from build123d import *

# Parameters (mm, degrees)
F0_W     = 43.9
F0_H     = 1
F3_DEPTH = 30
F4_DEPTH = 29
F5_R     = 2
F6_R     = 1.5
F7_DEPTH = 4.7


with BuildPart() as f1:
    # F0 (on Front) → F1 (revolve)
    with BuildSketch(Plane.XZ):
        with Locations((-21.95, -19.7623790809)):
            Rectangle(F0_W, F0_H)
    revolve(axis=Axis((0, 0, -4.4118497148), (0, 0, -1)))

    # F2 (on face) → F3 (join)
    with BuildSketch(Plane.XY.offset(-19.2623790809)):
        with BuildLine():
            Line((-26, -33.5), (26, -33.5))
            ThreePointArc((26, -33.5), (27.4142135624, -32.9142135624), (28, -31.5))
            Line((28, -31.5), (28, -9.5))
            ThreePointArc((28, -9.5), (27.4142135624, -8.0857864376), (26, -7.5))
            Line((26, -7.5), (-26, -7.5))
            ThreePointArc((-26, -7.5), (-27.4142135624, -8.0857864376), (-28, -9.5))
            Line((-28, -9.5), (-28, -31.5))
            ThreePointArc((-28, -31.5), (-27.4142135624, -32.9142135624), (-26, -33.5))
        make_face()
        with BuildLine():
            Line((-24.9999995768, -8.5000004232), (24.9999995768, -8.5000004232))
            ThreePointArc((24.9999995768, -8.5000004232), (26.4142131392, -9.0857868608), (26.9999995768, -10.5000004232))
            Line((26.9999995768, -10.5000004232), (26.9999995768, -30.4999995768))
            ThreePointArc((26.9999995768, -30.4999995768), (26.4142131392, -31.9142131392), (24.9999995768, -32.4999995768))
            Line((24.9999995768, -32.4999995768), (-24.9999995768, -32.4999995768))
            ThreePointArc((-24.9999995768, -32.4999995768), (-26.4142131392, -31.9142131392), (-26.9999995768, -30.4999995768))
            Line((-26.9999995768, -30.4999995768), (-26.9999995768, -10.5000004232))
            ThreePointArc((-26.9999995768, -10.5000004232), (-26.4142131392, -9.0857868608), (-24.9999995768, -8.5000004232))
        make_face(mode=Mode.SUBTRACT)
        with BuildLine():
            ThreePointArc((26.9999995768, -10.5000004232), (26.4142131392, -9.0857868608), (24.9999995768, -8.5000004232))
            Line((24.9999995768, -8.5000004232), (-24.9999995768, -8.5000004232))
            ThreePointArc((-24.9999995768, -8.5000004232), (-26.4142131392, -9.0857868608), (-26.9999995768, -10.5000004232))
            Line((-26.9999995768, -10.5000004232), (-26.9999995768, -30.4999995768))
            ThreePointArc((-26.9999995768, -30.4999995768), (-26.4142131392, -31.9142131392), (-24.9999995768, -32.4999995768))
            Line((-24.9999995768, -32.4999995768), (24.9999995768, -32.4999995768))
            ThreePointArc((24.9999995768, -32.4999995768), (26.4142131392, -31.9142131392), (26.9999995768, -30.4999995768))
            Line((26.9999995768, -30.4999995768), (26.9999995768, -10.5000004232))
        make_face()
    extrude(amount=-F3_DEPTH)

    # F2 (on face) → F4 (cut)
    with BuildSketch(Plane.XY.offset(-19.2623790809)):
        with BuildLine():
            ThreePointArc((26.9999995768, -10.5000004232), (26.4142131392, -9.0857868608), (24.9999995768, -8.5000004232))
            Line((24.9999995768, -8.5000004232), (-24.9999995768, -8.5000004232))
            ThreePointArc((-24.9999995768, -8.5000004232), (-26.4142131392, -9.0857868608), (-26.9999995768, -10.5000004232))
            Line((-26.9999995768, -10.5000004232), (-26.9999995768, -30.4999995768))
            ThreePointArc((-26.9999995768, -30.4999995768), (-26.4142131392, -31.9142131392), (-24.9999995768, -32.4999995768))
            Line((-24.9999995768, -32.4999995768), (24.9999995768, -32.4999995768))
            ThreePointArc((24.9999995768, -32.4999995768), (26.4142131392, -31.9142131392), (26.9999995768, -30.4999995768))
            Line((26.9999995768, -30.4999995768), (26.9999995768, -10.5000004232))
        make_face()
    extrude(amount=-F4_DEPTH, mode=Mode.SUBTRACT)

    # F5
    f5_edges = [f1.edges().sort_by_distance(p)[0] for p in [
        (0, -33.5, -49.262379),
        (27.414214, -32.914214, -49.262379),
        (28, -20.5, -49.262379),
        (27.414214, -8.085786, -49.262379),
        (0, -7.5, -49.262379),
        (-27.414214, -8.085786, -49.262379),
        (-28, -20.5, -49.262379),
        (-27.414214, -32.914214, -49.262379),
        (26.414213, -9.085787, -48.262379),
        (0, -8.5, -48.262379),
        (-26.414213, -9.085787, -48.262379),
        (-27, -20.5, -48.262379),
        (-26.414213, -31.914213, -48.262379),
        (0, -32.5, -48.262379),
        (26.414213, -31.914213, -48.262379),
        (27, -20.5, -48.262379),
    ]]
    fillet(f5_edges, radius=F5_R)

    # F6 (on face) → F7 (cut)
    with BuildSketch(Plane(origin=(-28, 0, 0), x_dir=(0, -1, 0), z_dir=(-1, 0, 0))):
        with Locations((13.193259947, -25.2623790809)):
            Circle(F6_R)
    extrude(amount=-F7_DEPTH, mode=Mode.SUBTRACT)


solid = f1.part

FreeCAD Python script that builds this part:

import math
import FreeCAD as App
import Part
import Sketcher


def edges_at(feature, points):
    """Names of the edges that pass closest to the given points."""
    edges = feature.Shape.Edges
    near = lambda p: min(range(len(edges)), key=lambda i: edges[i].distToShape(Part.Vertex(*p))[0])
    return sorted({f"Edge{near(p) + 1}" for p in points})

doc = App.newDocument("Part")
body = doc.addObject("PartDesign::Body", "Body")

sketch1 = doc.addObject("Sketcher::SketchObject", "Sketch")
body.addObject(sketch1)
sketch1.AttachmentSupport = (doc.XZ_Plane, [""])
sketch1.MapMode = "FlatFace"
sketch1.addGeometry(Part.LineSegment(App.Vector(-43.9, -19.3, 0), App.Vector(-43.9, -20.3, 0)), False)
sketch1.addGeometry(Part.LineSegment(App.Vector(-43.9, -20.3, 0), App.Vector(0, -20.3, 0)), False)
sketch1.addGeometry(Part.LineSegment(App.Vector(0, -20.3, 0), App.Vector(0, -19.3, 0)), False)
sketch1.addGeometry(Part.LineSegment(App.Vector(0, -19.3, 0), App.Vector(-43.9, -19.3, 0)), False)
sketch1.addConstraint(Sketcher.Constraint("Coincident", 0, 2, 1, 1))
sketch1.addConstraint(Sketcher.Constraint("Coincident", 1, 2, 2, 1))
sketch1.addConstraint(Sketcher.Constraint("Coincident", 2, 2, 3, 1))
sketch1.addConstraint(Sketcher.Constraint("Coincident", 3, 2, 0, 1))
sketch1.addConstraint(Sketcher.Constraint("Vertical", 0))
sketch1.addConstraint(Sketcher.Constraint("Horizontal", 1))
sketch1.addConstraint(Sketcher.Constraint("Vertical", 2))
sketch1.addConstraint(Sketcher.Constraint("Horizontal", 3))
sketch1.addConstraint(Sketcher.Constraint("PointOnObject", 1, 2, -2))
sketch1.addConstraint(Sketcher.Constraint("DistanceY", 0, 2, 0, 1, 1.0))
sketch1.addConstraint(Sketcher.Constraint("DistanceX", 1, 1, 1, 2, 43.9))
sketch1.addConstraint(Sketcher.Constraint("DistanceY", 0, 2, -1, 1, 20.262379))
revolution = doc.addObject("PartDesign::Revolution", "Revolution")
body.addObject(revolution)
revolution.Profile = sketch1
revolution.ReferenceAxis = (sketch1, ["V_Axis"])
revolution.Angle = 360

sketch2 = doc.addObject("Sketcher::SketchObject", "Sketch001")
body.addObject(sketch2)
sketch2.AttachmentSupport = (doc.XY_Plane, [""])
sketch2.MapMode = "FlatFace"
sketch2.AttachmentOffset = App.Placement(App.Vector(0, 0, -19.262379), App.Rotation())
sketch2.addGeometry(Part.LineSegment(App.Vector(-26, -33.5, 0), App.Vector(26, -33.5, 0)), False)
sketch2.addGeometry(Part.ArcOfCircle(Part.Circle(App.Vector(26, -31.5, 0), App.Vector(0, 0, 1), 2), math.radians(-90), math.radians(0)), False)
sketch2.addGeometry(Part.LineSegment(App.Vector(28, -31.5, 0), App.Vector(28, -9.5, 0)), False)
sketch2.addGeometry(Part.ArcOfCircle(Part.Circle(App.Vector(26, -9.5, 0), App.Vector(0, 0, 1), 2), math.radians(0), math.radians(90)), False)
sketch2.addGeometry(Part.LineSegment(App.Vector(26, -7.5, 0), App.Vector(-26, -7.5, 0)), False)
sketch2.addGeometry(Part.ArcOfCircle(Part.Circle(App.Vector(-26, -9.5, 0), App.Vector(0, 0, 1), 2), math.radians(90), math.radians(180)), False)
sketch2.addGeometry(Part.LineSegment(App.Vector(-28, -9.5, 0), App.Vector(-28, -31.5, 0)), False)
sketch2.addGeometry(Part.ArcOfCircle(Part.Circle(App.Vector(-26, -31.5, 0), App.Vector(0, 0, 1), 2), math.radians(180), math.radians(270)), False)
sketch2.addConstraint(Sketcher.Constraint("Tangent", 0, 2, 1, 1))
sketch2.addConstraint(Sketcher.Constraint("Tangent", 1, 2, 2, 1))
sketch2.addConstraint(Sketcher.Constraint("Tangent", 2, 2, 3, 1))
sketch2.addConstraint(Sketcher.Constraint("Tangent", 3, 2, 4, 1))
sketch2.addConstraint(Sketcher.Constraint("Tangent", 4, 2, 5, 1))
sketch2.addConstraint(Sketcher.Constraint("Tangent", 5, 2, 6, 1))
sketch2.addConstraint(Sketcher.Constraint("Tangent", 6, 2, 7, 1))
sketch2.addConstraint(Sketcher.Constraint("Tangent", 7, 2, 0, 1))
sketch2.addConstraint(Sketcher.Constraint("Horizontal", 0))
sketch2.addConstraint(Sketcher.Constraint("Vertical", 2))
sketch2.addConstraint(Sketcher.Constraint("Horizontal", 4))
sketch2.addConstraint(Sketcher.Constraint("Vertical", 6))
sketch2.addConstraint(Sketcher.Constraint("Equal", 1, 3))
sketch2.addConstraint(Sketcher.Constraint("Equal", 3, 5))
sketch2.addConstraint(Sketcher.Constraint("Equal", 5, 7))
sketch2.addConstraint(Sketcher.Constraint("Radius", 1, 2.0))
sketch2.addConstraint(Sketcher.Constraint("DistanceX", 0, 1, 0, 2, 52.0))
sketch2.addConstraint(Sketcher.Constraint("DistanceY", 2, 1, 2, 2, 22.0))
sketch2.addConstraint(Sketcher.Constraint("DistanceX", -1, 1, 1, 3, 26.0))
sketch2.addConstraint(Sketcher.Constraint("DistanceY", 1, 3, -1, 1, 31.5))
pad1 = doc.addObject("PartDesign::Pad", "Pad")
body.addObject(pad1)
pad1.Profile = sketch2
pad1.Length = 30
pad1.Reversed = True

sketch3 = doc.addObject("Sketcher::SketchObject", "Sketch002")
body.addObject(sketch3)
sketch3.AttachmentSupport = (doc.XY_Plane, [""])
sketch3.MapMode = "FlatFace"
sketch3.AttachmentOffset = App.Placement(App.Vector(0, 0, -19.262379), App.Rotation())
sketch3.addGeometry(Part.ArcOfCircle(Part.Circle(App.Vector(25, -10.5, 0), App.Vector(0, 0, 1), 2), math.radians(0), math.radians(90)), False)
sketch3.addGeometry(Part.LineSegment(App.Vector(25, -8.5, 0), App.Vector(-25, -8.5, 0)), False)
sketch3.addGeometry(Part.ArcOfCircle(Part.Circle(App.Vector(-25, -10.5, 0), App.Vector(0, 0, 1), 2), math.radians(90), math.radians(180)), False)
sketch3.addGeometry(Part.LineSegment(App.Vector(-27, -10.5, 0), App.Vector(-27, -30.5, 0)), False)
sketch3.addGeometry(Part.ArcOfCircle(Part.Circle(App.Vector(-25, -30.5, 0), App.Vector(0, 0, 1), 2), math.radians(180), math.radians(270)), False)
sketch3.addGeometry(Part.LineSegment(App.Vector(-25, -32.5, 0), App.Vector(25, -32.5, 0)), False)
sketch3.addGeometry(Part.ArcOfCircle(Part.Circle(App.Vector(25, -30.5, 0), App.Vector(0, 0, 1), 2), math.radians(-90), math.radians(0)), False)
sketch3.addGeometry(Part.LineSegment(App.Vector(27, -30.5, 0), App.Vector(27, -10.5, 0)), False)
sketch3.addConstraint(Sketcher.Constraint("Tangent", 0, 2, 1, 1))
sketch3.addConstraint(Sketcher.Constraint("Tangent", 1, 2, 2, 1))
sketch3.addConstraint(Sketcher.Constraint("Tangent", 2, 2, 3, 1))
sketch3.addConstraint(Sketcher.Constraint("Tangent", 3, 2, 4, 1))
sketch3.addConstraint(Sketcher.Constraint("Tangent", 4, 2, 5, 1))
sketch3.addConstraint(Sketcher.Constraint("Tangent", 5, 2, 6, 1))
sketch3.addConstraint(Sketcher.Constraint("Tangent", 6, 2, 7, 1))
sketch3.addConstraint(Sketcher.Constraint("Tangent", 7, 2, 0, 1))
sketch3.addConstraint(Sketcher.Constraint("Horizontal", 1))
sketch3.addConstraint(Sketcher.Constraint("Vertical", 3))
sketch3.addConstraint(Sketcher.Constraint("Horizontal", 5))
sketch3.addConstraint(Sketcher.Constraint("Vertical", 7))
sketch3.addConstraint(Sketcher.Constraint("Equal", 0, 2))
sketch3.addConstraint(Sketcher.Constraint("Equal", 2, 4))
sketch3.addConstraint(Sketcher.Constraint("Equal", 4, 6))
sketch3.addConstraint(Sketcher.Constraint("Radius", 0, 2.0))
sketch3.addConstraint(Sketcher.Constraint("DistanceX", 1, 2, 1, 1, 49.999999))
sketch3.addConstraint(Sketcher.Constraint("DistanceY", 3, 2, 3, 1, 19.999999))
sketch3.addConstraint(Sketcher.Constraint("DistanceX", -1, 1, 0, 3, 25.0))
sketch3.addConstraint(Sketcher.Constraint("DistanceY", 0, 3, -1, 1, 10.5))
pocket1 = doc.addObject("PartDesign::Pocket", "Pocket")
body.addObject(pocket1)
pocket1.Profile = sketch3
pocket1.Length = 29
doc.recompute()

fillet = doc.addObject("PartDesign::Fillet", "Fillet")
body.addObject(fillet)
fillet.Base = (pocket1, edges_at(pocket1, [
    (0, -33.5, -49.262),
    (27.414, -32.914, -49.262),
    (28, -20.5, -49.262),
    (27.414, -8.086, -49.262),
    (0, -7.5, -49.262),
    (-27.414, -8.086, -49.262),
    (-28, -20.5, -49.262),
    (-27.414, -32.914, -49.262),
    (26.414, -9.086, -48.262),
    (0, -8.5, -48.262),
    (-26.414, -9.086, -48.262),
    (-27, -20.5, -48.262),
    (-26.414, -31.914, -48.262),
    (0, -32.5, -48.262),
    (26.414, -31.914, -48.262),
    (27, -20.5, -48.262),
]))
fillet.Radius = 2

sketch4 = doc.addObject("Sketcher::SketchObject", "Sketch003")
body.addObject(sketch4)
sketch4.AttachmentSupport = (doc.YZ_Plane, [""])
sketch4.MapMode = "FlatFace"
sketch4.AttachmentOffset = App.Placement(App.Vector(0, 0, -28), App.Rotation())
sketch4.addGeometry(Part.Circle(App.Vector(-13.2, -25.3, 0), App.Vector(0, 0, 1), 1.5), False)
sketch4.addConstraint(Sketcher.Constraint("Diameter", 0, 3.0))
sketch4.addConstraint(Sketcher.Constraint("DistanceX", 0, 3, -1, 1, 13.19326))
sketch4.addConstraint(Sketcher.Constraint("DistanceY", 0, 3, -1, 1, 25.262379))
pocket2 = doc.addObject("PartDesign::Pocket", "Pocket001")
body.addObject(pocket2)
pocket2.Profile = sketch4
pocket2.Length = 4.7
pocket2.Reversed = True

doc.recompute()
